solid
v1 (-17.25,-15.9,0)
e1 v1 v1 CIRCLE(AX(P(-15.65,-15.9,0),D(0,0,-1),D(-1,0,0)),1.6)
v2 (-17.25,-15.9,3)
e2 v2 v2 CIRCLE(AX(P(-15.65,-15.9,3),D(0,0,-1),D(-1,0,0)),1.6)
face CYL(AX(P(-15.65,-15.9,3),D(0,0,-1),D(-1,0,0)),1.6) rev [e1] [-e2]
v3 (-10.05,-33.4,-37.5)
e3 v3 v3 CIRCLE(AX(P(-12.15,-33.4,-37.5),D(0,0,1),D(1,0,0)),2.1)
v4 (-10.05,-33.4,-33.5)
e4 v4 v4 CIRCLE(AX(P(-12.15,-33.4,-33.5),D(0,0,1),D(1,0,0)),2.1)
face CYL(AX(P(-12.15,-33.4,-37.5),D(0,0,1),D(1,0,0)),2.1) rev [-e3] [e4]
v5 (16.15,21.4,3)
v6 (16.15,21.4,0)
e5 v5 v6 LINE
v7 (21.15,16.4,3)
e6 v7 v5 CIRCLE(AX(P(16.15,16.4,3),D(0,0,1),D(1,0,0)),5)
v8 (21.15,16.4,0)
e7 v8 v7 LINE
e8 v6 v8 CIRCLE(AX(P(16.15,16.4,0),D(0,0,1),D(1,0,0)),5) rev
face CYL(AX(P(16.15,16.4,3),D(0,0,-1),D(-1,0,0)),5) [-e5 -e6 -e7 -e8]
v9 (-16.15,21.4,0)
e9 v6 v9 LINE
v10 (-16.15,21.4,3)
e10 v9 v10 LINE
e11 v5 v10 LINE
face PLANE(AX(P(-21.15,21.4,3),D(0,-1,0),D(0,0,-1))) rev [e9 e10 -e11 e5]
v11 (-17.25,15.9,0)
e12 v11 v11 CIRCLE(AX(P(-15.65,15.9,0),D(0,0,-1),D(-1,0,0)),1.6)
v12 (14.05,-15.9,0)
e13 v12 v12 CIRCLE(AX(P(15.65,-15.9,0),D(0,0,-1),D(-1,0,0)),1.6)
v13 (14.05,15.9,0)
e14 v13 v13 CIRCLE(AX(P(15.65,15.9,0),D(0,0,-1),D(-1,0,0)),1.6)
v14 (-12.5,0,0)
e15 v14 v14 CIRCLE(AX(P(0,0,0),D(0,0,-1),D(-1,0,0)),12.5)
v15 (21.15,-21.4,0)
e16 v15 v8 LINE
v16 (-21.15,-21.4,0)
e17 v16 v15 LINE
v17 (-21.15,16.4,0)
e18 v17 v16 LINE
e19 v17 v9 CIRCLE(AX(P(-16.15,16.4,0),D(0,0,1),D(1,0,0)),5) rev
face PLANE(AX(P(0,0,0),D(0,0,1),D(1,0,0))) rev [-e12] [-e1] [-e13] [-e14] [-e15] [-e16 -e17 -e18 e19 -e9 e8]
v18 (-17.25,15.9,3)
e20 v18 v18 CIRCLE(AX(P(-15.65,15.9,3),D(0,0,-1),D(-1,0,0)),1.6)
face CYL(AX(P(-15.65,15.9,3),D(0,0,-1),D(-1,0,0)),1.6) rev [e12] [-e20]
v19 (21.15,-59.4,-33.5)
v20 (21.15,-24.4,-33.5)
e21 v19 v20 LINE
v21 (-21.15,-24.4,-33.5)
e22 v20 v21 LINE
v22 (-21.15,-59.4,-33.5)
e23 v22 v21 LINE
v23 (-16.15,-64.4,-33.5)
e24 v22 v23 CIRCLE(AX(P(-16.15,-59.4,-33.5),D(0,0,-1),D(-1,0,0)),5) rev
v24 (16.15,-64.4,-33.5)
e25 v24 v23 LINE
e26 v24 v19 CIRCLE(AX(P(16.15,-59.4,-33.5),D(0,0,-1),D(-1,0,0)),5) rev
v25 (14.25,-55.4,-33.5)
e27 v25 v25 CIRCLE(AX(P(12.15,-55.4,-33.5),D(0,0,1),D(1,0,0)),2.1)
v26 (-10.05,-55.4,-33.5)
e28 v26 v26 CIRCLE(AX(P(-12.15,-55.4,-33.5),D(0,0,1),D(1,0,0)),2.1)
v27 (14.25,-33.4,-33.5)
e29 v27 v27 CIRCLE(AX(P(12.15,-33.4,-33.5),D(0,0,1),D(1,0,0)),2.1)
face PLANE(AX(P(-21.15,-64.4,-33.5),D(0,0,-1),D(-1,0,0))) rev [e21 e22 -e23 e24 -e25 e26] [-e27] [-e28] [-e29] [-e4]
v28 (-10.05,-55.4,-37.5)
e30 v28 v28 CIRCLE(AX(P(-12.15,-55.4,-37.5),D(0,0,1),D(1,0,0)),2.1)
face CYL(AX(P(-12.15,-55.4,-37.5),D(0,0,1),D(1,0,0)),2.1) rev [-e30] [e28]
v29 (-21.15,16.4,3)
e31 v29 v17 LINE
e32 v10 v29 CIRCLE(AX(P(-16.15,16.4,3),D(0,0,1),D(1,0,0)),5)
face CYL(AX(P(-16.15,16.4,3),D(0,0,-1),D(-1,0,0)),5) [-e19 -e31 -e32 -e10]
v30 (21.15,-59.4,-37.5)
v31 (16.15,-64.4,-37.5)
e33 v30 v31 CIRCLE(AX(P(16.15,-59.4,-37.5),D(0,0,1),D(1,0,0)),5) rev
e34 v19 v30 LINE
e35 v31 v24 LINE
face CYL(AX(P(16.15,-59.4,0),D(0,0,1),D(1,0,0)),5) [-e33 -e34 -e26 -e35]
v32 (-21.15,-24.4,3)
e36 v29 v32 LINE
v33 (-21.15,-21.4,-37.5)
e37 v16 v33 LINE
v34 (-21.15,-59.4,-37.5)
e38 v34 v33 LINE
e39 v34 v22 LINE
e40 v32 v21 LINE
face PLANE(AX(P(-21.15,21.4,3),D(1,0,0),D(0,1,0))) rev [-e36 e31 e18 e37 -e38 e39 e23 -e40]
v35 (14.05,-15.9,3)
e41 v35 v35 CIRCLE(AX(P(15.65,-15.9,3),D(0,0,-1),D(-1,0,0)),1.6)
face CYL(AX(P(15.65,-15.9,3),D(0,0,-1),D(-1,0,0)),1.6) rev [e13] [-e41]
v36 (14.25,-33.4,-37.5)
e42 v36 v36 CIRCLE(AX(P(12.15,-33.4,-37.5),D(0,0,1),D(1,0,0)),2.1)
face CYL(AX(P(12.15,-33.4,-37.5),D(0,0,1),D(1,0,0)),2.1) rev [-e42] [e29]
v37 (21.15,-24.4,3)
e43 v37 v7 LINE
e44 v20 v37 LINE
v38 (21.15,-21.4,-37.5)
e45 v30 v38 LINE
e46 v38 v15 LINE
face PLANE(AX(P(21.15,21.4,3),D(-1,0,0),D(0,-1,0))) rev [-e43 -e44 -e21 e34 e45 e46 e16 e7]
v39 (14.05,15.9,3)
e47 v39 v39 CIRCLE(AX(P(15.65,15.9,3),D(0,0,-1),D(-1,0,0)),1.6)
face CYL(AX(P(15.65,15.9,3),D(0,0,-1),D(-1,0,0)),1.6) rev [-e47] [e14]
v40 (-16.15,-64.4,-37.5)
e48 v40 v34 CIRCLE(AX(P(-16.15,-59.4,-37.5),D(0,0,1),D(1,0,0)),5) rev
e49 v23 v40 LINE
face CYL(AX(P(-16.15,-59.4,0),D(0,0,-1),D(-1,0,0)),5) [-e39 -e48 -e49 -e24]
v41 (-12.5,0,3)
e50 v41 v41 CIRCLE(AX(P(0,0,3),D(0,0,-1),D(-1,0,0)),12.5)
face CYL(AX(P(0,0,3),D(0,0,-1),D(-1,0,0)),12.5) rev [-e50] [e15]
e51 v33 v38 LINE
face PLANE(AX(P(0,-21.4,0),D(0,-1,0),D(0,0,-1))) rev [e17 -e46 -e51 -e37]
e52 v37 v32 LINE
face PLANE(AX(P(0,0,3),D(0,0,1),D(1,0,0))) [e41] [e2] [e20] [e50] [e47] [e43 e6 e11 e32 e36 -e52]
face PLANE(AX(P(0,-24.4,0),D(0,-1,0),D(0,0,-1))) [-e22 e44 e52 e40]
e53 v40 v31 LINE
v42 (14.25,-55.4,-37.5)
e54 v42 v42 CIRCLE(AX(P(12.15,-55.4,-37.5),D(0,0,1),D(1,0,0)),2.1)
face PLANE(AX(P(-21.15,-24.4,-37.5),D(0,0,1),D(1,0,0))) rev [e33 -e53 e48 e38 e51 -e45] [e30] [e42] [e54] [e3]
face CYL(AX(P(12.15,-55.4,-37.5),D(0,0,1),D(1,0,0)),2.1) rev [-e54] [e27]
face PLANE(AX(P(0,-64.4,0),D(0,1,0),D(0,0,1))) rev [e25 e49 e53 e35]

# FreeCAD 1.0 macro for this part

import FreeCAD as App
import Part
import Sketcher


def edges_at(feature, points):
    """Names of the edges that pass closest to the given points."""
    edges = feature.Shape.Edges
    near = lambda p: min(range(len(edges)), key=lambda i: edges[i].distToShape(Part.Vertex(*p))[0])
    return sorted({f"Edge{near(p) + 1}" for p in points})


def add_polygon(sketch, points):
    """Adds a closed chain of lines whose ends are joined by coincident constraints."""
    first, n = sketch.GeometryCount, len(points)
    for a, b in zip(points, points[1:] + points[:1]):
        sketch.addGeometry(Part.LineSegment(App.Vector(*a, 0), App.Vector(*b, 0)), False)
    for i in range(n):
        sketch.addConstraint(Sketcher.Constraint("Coincident", first + i, 2, first + (i + 1) % n, 1))

doc = App.newDocument("Part")
params = doc.addObject("Spreadsheet::Sheet", "Params")
for row, (alias, value) in enumerate([
    ("sketch1_width", "42.3 mm"),
    ("sketch1_height", "42.8 mm"),
    ("pad1_length", "3 mm"),
    ("sketch2_diameter", "25 mm"),
    ("sketch2_diameter2", "3.2 mm"),
    ("sketch3_width", "42.3 mm"),
    ("sketch3_height", "40.5 mm"),
    ("pad2_length", "3 mm"),
    ("sketch4_height", "4 mm"),
    ("sketch4_width", "42.3 mm"),
    ("pad3_length", "40 mm"),
    ("sketch5_diameter", "4.2 mm"),
    ("fillet_radius", "5 mm"),
], start=1):
    params.set(f"A{row}", alias)
    params.set(f"B{row}", "=" + value)
    params.setAlias(f"B{row}", alias)

body = doc.addObject("PartDesign::Body", "Body")

sketch1 = body.newObject("Sketcher::SketchObject", "Sketch")
sketch1.AttachmentSupport = (doc.getObject("XY_Plane"), [""])
sketch1.MapMode = "FlatFace"
add_polygon(sketch1, [(-21, 21), (-21, -21), (21, -21), (21, 21)])
sketch1.addConstraint([
    Sketcher.Constraint("Vertical", 0),
    Sketcher.Constraint("Horizontal", 1),
    Sketcher.Constraint("Vertical", 2),
    Sketcher.Constraint("Horizontal", 3),
    Sketcher.Constraint("Symmetric", 0, 2, 2, 2, -1, 1),
    Sketcher.Constraint("DistanceX", 1, 1, 1, 2, 42.3),
    Sketcher.Constraint("DistanceY", 0, 2, 0, 1, 42.8),
])
sketch1.setExpression("Constraints[9]", "Params.sketch1_width")
sketch1.setExpression("Constraints[10]", "Params.sketch1_height")
pad1 = body.newObject("PartDesign::Pad", "Pad")
pad1.Profile = sketch1
pad1.setExpression("Length", "Params.pad1_length")

sketch2 = body.newObject("Sketcher::SketchObject", "Sketch001")
sketch2.AttachmentSupport = (doc.getObject("XY_Plane"), [""])
sketch2.MapMode = "FlatFace"
sketch2.addGeometry([
    Part.Circle(App.Vector(0, 0, 0), App.Vector(0, 0, 1), 12.5),
    Part.Circle(App.Vector(15.7, 15.9, 0), App.Vector(0, 0, 1), 1.6),
    Part.Circle(App.Vector(-15.7, 15.9, 0), App.Vector(0, 0, 1), 1.6),
    Part.Circle(App.Vector(15.7, -15.9, 0), App.Vector(0, 0, 1), 1.6),
    Part.Circle(App.Vector(-15.7, -15.9, 0), App.Vector(0, 0, 1), 1.6),
], False)
sketch2.addConstraint([
    Sketcher.Constraint("Coincident", 0, 3, -1, 1),
    Sketcher.Constraint("Equal", 1, 2),
    Sketcher.Constraint("Equal", 2, 3),
    Sketcher.Constraint("Equal", 3, 4),
    Sketcher.Constraint("Symmetric", 2, 3, 3, 3, -1, 1),
    Sketcher.Constraint("Symmetric", 1, 3, 4, 3, -1, 1),
    Sketcher.Constraint("Symmetric", 1, 3, 2, 3, -2),
    Sketcher.Constraint("Diameter", 0, 25.0),
    Sketcher.Constraint("Diameter", 1, 3.2),
    Sketcher.Constraint("DistanceY", -1, 1, 1, 3, 15.9),
    Sketcher.Constraint("DistanceX", 2, 3, 1, 3, 31.3),
])
sketch2.setExpression("Constraints[7]", "Params.sketch2_diameter")
sketch2.setExpression("Constraints[8]", "Params.sketch2_diameter2")
pocket1 = body.newObject("PartDesign::Pocket", "Pocket")
pocket1.Profile = sketch2
pocket1.Type = "ThroughAll"
pocket1.Reversed = True

sketch3 = body.newObject("Sketcher::SketchObject", "Sketch002")
sketch3.AttachmentSupport = (doc.getObject("XZ_Plane"), [""])
sketch3.MapMode = "FlatFace"
sketch3.AttachmentOffset = App.Placement(App.Vector(0, 0, 21.4), App.Rotation())
add_polygon(sketch3, [(-21, 3), (-21, -38), (21, -38), (21, 3)])
sketch3.addConstraint([
    Sketcher.Constraint("Vertical", 0),
    Sketcher.Constraint("Horizontal", 1),
    Sketcher.Constraint("Vertical", 2),
    Sketcher.Constraint("Horizontal", 3),
    Sketcher.Constraint("DistanceX", 1, 1, 1, 2, 42.3),
    Sketcher.Constraint("DistanceY", 0, 2, 0, 1, 40.5),
    Sketcher.Constraint("DistanceY", -1, 1, 2, 2, 3.0),
    Sketcher.Constraint("DistanceX", 0, 2, -1, 1, 21.15),
])
sketch3.setExpression("Constraints[8]", "Params.sketch3_width")
sketch3.setExpression("Constraints[9]", "Params.sketch3_height")
pad2 = body.newObject("PartDesign::Pad", "Pad001")
pad2.Profile = sketch3
pad2.setExpression("Length", "Params.pad2_length")

sketch4 = body.newObject("Sketcher::SketchObject", "Sketch003")
sketch4.AttachmentSupport = (doc.getObject("XZ_Plane"), [""])
sketch4.MapMode = "FlatFace"
sketch4.AttachmentOffset = App.Placement(App.Vector(0, 0, 24.4), App.Rotation())
add_polygon(sketch4, [(-21.1, -33.5), (-21.1, -37.5), (21.1, -37.5), (21.1, -33.5)])
sketch4.addConstraint([
    Sketcher.Constraint("Vertical", 0),
    Sketcher.Constraint("Horizontal", 1),
    Sketcher.Constraint("Vertical", 2),
    Sketcher.Constraint("Horizontal", 3),
    Sketcher.Constraint("DistanceY", 0, 2, 0, 1, 4.0),
    Sketcher.Constraint("DistanceX", 1, 1, 1, 2, 42.3),
    Sketcher.Constraint("DistanceY", 0, 2, -1, 1, 37.5),
    Sketcher.Constraint("DistanceX", 0, 2, -1, 1, 21.15),
])
sketch4.setExpression("Constraints[8]", "Params.sketch4_height")
sketch4.setExpression("Constraints[9]", "Params.sketch4_width")
pad3 = body.newObject("PartDesign::Pad", "Pad002")
pad3.Profile = sketch4
pad3.setExpression("Length", "Params.pad3_length")

sketch5 = body.newObject("Sketcher::SketchObject", "Sketch004")
sketch5.AttachmentSupport = (doc.getObject("XY_Plane"), [""])
sketch5.MapMode = "FlatFace"
sketch5.AttachmentOffset = App.Placement(App.Vector(0, 0, -33.5), App.Rotation())
sketch5.addGeometry([
    Part.Circle(App.Vector(-12.2, -33.4, 0), App.Vector(0, 0, 1), 2.1),
    Part.Circle(App.Vector(12.2, -33.4, 0), App.Vector(0, 0, 1), 2.1),
    Part.Circle(App.Vector(-12.2, -55.4, 0), App.Vector(0, 0, 1), 2.1),
    Part.Circle(App.Vector(12.2, -55.4, 0), App.Vector(0, 0, 1), 2.1),
], False)
sketch5.addConstraint([
    Sketcher.Constraint("Equal", 0, 1),
    Sketcher.Constraint("Equal", 1, 2),
    Sketcher.Constraint("Equal", 2, 3),
    Sketcher.Constraint("Symmetric", 0, 3, 1, 3, -2),
    Sketcher.Constraint("Symmetric", 2, 3, 3, 3, -2),
    Sketcher.Constraint("Vertical", 0, 3, 2, 3),
    Sketcher.Constraint("Diameter", 0, 4.2),
    Sketcher.Constraint("DistanceY", 2, 3, 0, 3, 22.0),
    Sketcher.Constraint("DistanceY", 0, 3, -1, 1, 33.4),
    Sketcher.Constraint("DistanceX", 0, 3, 1, 3, 24.3),
])
sketch5.setExpression("Constraints[6]", "Params.sketch5_diameter")
pocket2 = body.newObject("PartDesign::Pocket", "Pocket001")
pocket2.Profile = sketch5
pocket2.Type = "ThroughAll"
doc.recompute()

fillet = body.newObject("PartDesign::Fillet", "Fillet")
fillet.Base = (pocket2, edges_at(pocket2, [
    (-21.15, -64.4, -35.5),
    (21.15, -64.4, -35.5),
    (-21.15, 21.4, 1.5),
    (21.15, 21.4, 1.5),
]))
fillet.setExpression("Radius", "Params.fillet_radius")

doc.recompute()
